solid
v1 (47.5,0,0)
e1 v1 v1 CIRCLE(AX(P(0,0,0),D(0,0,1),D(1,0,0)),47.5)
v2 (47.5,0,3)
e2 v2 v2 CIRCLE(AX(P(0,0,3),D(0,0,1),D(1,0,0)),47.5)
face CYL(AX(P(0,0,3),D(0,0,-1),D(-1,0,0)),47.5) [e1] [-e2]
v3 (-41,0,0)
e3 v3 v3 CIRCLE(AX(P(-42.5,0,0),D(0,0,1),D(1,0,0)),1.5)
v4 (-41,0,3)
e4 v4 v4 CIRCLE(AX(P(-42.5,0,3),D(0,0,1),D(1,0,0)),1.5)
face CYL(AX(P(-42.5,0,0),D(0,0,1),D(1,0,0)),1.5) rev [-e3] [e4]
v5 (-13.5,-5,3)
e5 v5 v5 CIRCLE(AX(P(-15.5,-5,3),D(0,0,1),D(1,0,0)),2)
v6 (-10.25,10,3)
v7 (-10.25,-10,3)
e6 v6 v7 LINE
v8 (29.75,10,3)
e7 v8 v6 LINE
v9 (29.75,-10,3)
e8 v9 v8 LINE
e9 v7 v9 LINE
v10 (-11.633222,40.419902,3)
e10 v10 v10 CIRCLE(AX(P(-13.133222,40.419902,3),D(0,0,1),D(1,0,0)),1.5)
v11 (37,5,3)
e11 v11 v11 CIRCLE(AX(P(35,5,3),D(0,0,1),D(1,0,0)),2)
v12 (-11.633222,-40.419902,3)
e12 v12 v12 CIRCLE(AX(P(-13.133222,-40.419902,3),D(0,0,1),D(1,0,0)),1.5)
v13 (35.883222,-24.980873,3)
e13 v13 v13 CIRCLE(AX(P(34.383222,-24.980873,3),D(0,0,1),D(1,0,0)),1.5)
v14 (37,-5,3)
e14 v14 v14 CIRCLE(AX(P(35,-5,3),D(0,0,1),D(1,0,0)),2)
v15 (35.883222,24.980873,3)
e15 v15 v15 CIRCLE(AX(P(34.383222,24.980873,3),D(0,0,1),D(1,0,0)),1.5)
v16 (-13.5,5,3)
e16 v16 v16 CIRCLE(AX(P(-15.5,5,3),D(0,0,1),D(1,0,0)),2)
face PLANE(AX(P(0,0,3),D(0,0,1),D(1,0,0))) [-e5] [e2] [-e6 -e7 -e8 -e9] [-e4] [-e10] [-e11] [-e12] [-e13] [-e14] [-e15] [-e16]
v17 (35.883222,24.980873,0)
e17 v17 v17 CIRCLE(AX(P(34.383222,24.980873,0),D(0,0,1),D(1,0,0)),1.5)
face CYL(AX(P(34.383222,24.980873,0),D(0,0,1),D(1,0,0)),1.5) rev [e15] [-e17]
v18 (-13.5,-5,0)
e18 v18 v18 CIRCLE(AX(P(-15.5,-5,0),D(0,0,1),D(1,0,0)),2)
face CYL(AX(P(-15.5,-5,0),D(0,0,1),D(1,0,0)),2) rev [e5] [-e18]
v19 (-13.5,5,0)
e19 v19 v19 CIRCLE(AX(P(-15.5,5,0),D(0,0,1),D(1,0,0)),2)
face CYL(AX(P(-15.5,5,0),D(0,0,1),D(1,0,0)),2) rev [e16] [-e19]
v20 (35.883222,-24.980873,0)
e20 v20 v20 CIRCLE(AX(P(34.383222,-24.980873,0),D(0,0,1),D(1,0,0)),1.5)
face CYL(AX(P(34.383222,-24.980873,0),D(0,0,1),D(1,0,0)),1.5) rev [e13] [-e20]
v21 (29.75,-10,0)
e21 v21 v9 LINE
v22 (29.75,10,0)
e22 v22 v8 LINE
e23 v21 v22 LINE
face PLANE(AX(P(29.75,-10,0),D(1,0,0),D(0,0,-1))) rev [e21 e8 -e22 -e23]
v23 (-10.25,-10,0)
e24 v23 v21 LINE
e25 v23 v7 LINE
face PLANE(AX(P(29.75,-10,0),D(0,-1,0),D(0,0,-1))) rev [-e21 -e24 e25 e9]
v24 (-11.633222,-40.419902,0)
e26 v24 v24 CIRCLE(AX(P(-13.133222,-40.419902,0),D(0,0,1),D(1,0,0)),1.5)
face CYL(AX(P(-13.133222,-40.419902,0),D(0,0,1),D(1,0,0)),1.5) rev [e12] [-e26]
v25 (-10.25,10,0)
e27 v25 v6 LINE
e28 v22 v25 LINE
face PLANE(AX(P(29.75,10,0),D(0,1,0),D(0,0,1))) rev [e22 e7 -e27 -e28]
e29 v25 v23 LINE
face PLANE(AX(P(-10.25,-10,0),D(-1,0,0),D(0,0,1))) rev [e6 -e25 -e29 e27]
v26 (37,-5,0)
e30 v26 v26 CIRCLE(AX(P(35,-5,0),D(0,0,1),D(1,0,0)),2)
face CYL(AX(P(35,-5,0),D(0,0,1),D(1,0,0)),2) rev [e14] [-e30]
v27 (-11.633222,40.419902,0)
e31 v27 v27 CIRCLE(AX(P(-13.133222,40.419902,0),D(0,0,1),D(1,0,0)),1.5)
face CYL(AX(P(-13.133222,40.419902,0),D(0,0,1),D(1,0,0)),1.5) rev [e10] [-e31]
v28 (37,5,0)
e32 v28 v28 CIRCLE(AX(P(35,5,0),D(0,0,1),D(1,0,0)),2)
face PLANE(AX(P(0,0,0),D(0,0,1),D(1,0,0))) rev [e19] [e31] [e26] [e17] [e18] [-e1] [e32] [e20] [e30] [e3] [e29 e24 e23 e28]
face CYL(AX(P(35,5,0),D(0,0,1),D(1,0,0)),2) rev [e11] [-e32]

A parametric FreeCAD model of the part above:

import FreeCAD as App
import Part
import Sketcher

V = App.Vector

doc = App.newDocument("Part")
body = doc.addObject("PartDesign::Body", "Body")

sketch1 = body.newObject("Sketcher::SketchObject", "Sketch")
sketch1.AttachmentSupport = (doc.getObject("XY_Plane"), [""])
sketch1.MapMode = "FlatFace"
sketch1.addGeometry(Part.Circle(V(0, 0, 0), V(0, 0, 1), 48), False)
sketch1.addConstraint([
    Sketcher.Constraint("Coincident", 0, 3, -1, 1),
    Sketcher.Constraint("Diameter", 0, 95.0),
])
pad1 = body.newObject("PartDesign::Pad", "Pad")
pad1.Profile = sketch1
pad1.Length = 3

sketch2 = body.newObject("Sketcher::SketchObject", "Sketch001")
sketch2.AttachmentSupport = (doc.getObject("XY_Plane"), [""])
sketch2.MapMode = "FlatFace"
sketch2.AttachmentOffset = App.Placement(V(0, 0, 3), App.Rotation())
sketch2.addGeometry([
    Part.Circle(V(35, -5, 0), V(0, 0, 1), 2),
    Part.Circle(V(35, 5, 0), V(0, 0, 1), 2),
    Part.Circle(V(-15.5, -5, 0), V(0, 0, 1), 2),
    Part.Circle(V(-15.5, 5, 0), V(0, 0, 1), 2),
    Part.LineSegment(V(-10.2, 10, 0), V(-10.2, -10, 0)),
    Part.LineSegment(V(-10.2, -10, 0), V(29.8, -10, 0)),
    Part.LineSegment(V(29.8, -10, 0), V(29.8, 10, 0)),
    Part.LineSegment(V(29.8, 10, 0), V(-10.2, 10, 0)),
], False)
sketch2.addConstraint([
    Sketcher.Constraint("Coincident", 4, 2, 5, 1),
    Sketcher.Constraint("Coincident", 5, 2, 6, 1),
    Sketcher.Constraint("Coincident", 6, 2, 7, 1),
    Sketcher.Constraint("Coincident", 7, 2, 4, 1),
    Sketcher.Constraint("Vertical", 4),
    Sketcher.Constraint("Horizontal", 5),
    Sketcher.Constraint("Vertical", 6),
    Sketcher.Constraint("Horizontal", 7),
    Sketcher.Constraint("Equal", 0, 1),
    Sketcher.Constraint("Equal", 1, 2),
    Sketcher.Constraint("Equal", 2, 3),
    Sketcher.Constraint("Symmetric", 0, 3, 1, 3, -1),
    Sketcher.Constraint("Symmetric", 2, 3, 3, 3, -1),
    Sketcher.Constraint("Horizontal", 0, 3, 2, 3),
    Sketcher.Constraint("Diameter", 0, 4.0),
    Sketcher.Constraint("DistanceX", 5, 1, 5, 2, 40.0),
    Sketcher.Constraint("DistanceY", 4, 2, 4, 1, 20.0),
    Sketcher.Constraint("DistanceX", -1, 1, 0, 3, 35.0),
    Sketcher.Constraint("DistanceY", 0, 3, -1, 1, 5.0),
    Sketcher.Constraint("DistanceY", 4, 2, -1, 1, 10.0),
    Sketcher.Constraint("DistanceX", 2, 3, -1, 1, 15.5),
    Sketcher.Constraint("DistanceX", 4, 2, -1, 1, 10.25),
])
pocket1 = body.newObject("PartDesign::Pocket", "Pocket")
pocket1.Profile = sketch2
pocket1.Type = "ThroughAll"

sketch3 = body.newObject("Sketcher::SketchObject", "Sketch002")
sketch3.AttachmentSupport = (doc.getObject("XY_Plane"), [""])
sketch3.MapMode = "FlatFace"
sketch3.AttachmentOffset = App.Placement(V(0, 0, 3), App.Rotation())
sketch3.addGeometry([
    Part.Circle(V(-42.5, 0, 0), V(0, 0, 1), 1.5),
    Part.Circle(V(-13.1, 40.4, 0), V(0, 0, 1), 1.5),
    Part.Circle(V(34.4, 25, 0), V(0, 0, 1), 1.5),
    Part.Circle(V(34.4, -25, 0), V(0, 0, 1), 1.5),
    Part.Circle(V(-13.1, -40.4, 0), V(0, 0, 1), 1.5),
], False)
sketch3.addConstraint([
    Sketcher.Constraint("Equal", 0, 1),
    Sketcher.Constraint("Equal", 1, 2),
    Sketcher.Constraint("Equal", 2, 3),
    Sketcher.Constraint("Equal", 3, 4),
    Sketcher.Constraint("Symmetric", 2, 3, 3, 3, -1),
    Sketcher.Constraint("Symmetric", 1, 3, 4, 3, -1),
    Sketcher.Constraint("PointOnObject", 0, 3, -1),
    Sketcher.Constraint("Diameter", 0, 3.0),
    Sketcher.Constraint("DistanceX", 0, 3, -1, 1, 42.5),
    Sketcher.Constraint("DistanceY", -1, 1, 1, 3, 40.419902),
    Sketcher.Constraint("DistanceY", 2, 3, 1, 3, 15.439029),
    Sketcher.Constraint("DistanceX", 1, 3, -1, 1, 13.133222),
    Sketcher.Constraint("DistanceX", -1, 1, 2, 3, 34.383222),
])
pocket2 = body.newObject("PartDesign::Pocket", "Pocket001")
pocket2.Profile = sketch3
pocket2.Type = "ThroughAll"

doc.recompute()
